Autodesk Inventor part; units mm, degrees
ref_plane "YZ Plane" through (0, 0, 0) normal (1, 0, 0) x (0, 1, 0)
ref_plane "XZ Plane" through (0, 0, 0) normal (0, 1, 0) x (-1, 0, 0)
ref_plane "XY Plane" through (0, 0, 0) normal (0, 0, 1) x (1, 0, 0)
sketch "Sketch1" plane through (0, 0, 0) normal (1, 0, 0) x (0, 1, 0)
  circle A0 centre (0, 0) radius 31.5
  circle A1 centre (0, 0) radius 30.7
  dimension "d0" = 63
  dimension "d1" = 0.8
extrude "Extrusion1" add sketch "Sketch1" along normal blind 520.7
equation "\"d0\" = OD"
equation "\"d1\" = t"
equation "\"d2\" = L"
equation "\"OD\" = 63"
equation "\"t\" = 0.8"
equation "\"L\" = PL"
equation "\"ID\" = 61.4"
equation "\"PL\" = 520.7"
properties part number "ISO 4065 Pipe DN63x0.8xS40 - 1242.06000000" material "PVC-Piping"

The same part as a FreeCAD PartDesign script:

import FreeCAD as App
import Part
import Sketcher

doc = App.newDocument("Part")
body = doc.addObject("PartDesign::Body", "Body")

sketch1 = body.newObject("Sketcher::SketchObject", "Sketch")
sketch1.AttachmentSupport = (doc.getObject("YZ_Plane"), [""])
sketch1.MapMode = "FlatFace"
sketch1.addGeometry(Part.Circle(App.Vector(0, 0, 0), App.Vector(0, 0, 1), 31.5), False)
sketch1.addGeometry(Part.Circle(App.Vector(0, 0, 0), App.Vector(0, 0, 1), 30.7), False)
sketch1.addConstraint(Sketcher.Constraint("Coincident", 0, 3, -1, 1))
sketch1.addConstraint(Sketcher.Constraint("Coincident", 1, 3, -1, 1))
sketch1.addConstraint(Sketcher.Constraint("Diameter", 0, 63.0))
sketch1.addConstraint(Sketcher.Constraint("Diameter", 1, 61.4))
pad1 = body.newObject("PartDesign::Pad", "Pad")
pad1.Profile = sketch1
pad1.Length = 520.7

doc.recompute()
